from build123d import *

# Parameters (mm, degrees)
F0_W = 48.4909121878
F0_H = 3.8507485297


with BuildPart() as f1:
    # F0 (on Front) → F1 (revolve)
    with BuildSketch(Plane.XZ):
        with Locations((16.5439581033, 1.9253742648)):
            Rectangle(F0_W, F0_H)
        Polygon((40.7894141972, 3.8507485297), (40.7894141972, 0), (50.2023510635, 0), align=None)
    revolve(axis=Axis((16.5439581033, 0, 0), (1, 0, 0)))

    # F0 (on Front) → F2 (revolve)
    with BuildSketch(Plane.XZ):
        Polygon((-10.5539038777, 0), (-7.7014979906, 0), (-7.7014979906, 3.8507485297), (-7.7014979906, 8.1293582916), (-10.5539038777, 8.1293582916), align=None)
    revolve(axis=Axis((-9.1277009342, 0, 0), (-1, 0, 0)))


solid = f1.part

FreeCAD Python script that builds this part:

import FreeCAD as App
import Part
import Sketcher

V = App.Vector


def add_polygon(sketch, points):
    """Adds a closed chain of lines whose ends are joined by coincident constraints."""
    first, n = sketch.GeometryCount, len(points)
    for a, b in zip(points, points[1:] + points[:1]):
        sketch.addGeometry(Part.LineSegment(App.Vector(*a, 0), App.Vector(*b, 0)), False)
    for i in range(n):
        sketch.addConstraint(Sketcher.Constraint("Coincident", first + i, 2, first + (i + 1) % n, 1))

doc = App.newDocument("Part")
body = doc.addObject("PartDesign::Body", "Body")

# Sketch on XZ plane
sketch1 = body.newObject("Sketcher::SketchObject", "Sketch")
sketch1.AttachmentSupport = (doc.getObject("XZ_Plane"), [""])
sketch1.MapMode = "FlatFace"
add_polygon(sketch1, [(-7.7, 3.9), (-7.7, 0), (50.2, 0), (40.8, 3.9)])  # lines 0-3
sketch1.addConstraint(Sketcher.Constraint("Vertical", 0))
sketch1.addConstraint(Sketcher.Constraint("Horizontal", 1))
sketch1.addConstraint(Sketcher.Constraint("Horizontal", 3))
sketch1.addConstraint(Sketcher.Constraint("PointOnObject", 0, 2, -1))
sketch1.addConstraint(Sketcher.Constraint("DistanceX", 1, 1, 1, 2, 57.903849))
sketch1.addConstraint(Sketcher.Constraint("DistanceY", 0, 2, 0, 1, 3.850749))
sketch1.addConstraint(Sketcher.Constraint("DistanceX", 3, 2, 3, 1, 48.490912))
sketch1.addConstraint(Sketcher.Constraint("DistanceX", -1, 1, 1, 2, 50.202351))
revolution = body.newObject("PartDesign::Revolution", "Revolution")
revolution.Profile = sketch1
revolution.ReferenceAxis = (sketch1, ["H_Axis"])
revolution.Angle = 360

# Sketch on XZ plane
sketch2 = body.newObject("Sketcher::SketchObject", "Sketch001")
sketch2.AttachmentSupport = (doc.getObject("XZ_Plane"), [""])
sketch2.MapMode = "FlatFace"
add_polygon(sketch2, [(-10.6, 0), (-7.7, 0), (-7.7, 8.1), (-10.6, 8.1)])  # lines 0-3
sketch2.addConstraint(Sketcher.Constraint("Horizontal", 0))
sketch2.addConstraint(Sketcher.Constraint("Vertical", 1))
sketch2.addConstraint(Sketcher.Constraint("Horizontal", 2))
sketch2.addConstraint(Sketcher.Constraint("Vertical", 3))
sketch2.addConstraint(Sketcher.Constraint("PointOnObject", 0, 2, -1))
sketch2.addConstraint(Sketcher.Constraint("DistanceY", 1, 1, 1, 2, 8.129358))
sketch2.addConstraint(Sketcher.Constraint("DistanceX", 0, 1, 0, 2, 2.852406))
sketch2.addConstraint(Sketcher.Constraint("DistanceX", 0, 2, -1, 1, 7.701498))
revolution2 = body.newObject("PartDesign::Revolution", "Revolution001")
revolution2.Profile = sketch2
revolution2.ReferenceAxis = (sketch2, ["H_Axis"])
revolution2.Angle = 360

doc.recompute()
